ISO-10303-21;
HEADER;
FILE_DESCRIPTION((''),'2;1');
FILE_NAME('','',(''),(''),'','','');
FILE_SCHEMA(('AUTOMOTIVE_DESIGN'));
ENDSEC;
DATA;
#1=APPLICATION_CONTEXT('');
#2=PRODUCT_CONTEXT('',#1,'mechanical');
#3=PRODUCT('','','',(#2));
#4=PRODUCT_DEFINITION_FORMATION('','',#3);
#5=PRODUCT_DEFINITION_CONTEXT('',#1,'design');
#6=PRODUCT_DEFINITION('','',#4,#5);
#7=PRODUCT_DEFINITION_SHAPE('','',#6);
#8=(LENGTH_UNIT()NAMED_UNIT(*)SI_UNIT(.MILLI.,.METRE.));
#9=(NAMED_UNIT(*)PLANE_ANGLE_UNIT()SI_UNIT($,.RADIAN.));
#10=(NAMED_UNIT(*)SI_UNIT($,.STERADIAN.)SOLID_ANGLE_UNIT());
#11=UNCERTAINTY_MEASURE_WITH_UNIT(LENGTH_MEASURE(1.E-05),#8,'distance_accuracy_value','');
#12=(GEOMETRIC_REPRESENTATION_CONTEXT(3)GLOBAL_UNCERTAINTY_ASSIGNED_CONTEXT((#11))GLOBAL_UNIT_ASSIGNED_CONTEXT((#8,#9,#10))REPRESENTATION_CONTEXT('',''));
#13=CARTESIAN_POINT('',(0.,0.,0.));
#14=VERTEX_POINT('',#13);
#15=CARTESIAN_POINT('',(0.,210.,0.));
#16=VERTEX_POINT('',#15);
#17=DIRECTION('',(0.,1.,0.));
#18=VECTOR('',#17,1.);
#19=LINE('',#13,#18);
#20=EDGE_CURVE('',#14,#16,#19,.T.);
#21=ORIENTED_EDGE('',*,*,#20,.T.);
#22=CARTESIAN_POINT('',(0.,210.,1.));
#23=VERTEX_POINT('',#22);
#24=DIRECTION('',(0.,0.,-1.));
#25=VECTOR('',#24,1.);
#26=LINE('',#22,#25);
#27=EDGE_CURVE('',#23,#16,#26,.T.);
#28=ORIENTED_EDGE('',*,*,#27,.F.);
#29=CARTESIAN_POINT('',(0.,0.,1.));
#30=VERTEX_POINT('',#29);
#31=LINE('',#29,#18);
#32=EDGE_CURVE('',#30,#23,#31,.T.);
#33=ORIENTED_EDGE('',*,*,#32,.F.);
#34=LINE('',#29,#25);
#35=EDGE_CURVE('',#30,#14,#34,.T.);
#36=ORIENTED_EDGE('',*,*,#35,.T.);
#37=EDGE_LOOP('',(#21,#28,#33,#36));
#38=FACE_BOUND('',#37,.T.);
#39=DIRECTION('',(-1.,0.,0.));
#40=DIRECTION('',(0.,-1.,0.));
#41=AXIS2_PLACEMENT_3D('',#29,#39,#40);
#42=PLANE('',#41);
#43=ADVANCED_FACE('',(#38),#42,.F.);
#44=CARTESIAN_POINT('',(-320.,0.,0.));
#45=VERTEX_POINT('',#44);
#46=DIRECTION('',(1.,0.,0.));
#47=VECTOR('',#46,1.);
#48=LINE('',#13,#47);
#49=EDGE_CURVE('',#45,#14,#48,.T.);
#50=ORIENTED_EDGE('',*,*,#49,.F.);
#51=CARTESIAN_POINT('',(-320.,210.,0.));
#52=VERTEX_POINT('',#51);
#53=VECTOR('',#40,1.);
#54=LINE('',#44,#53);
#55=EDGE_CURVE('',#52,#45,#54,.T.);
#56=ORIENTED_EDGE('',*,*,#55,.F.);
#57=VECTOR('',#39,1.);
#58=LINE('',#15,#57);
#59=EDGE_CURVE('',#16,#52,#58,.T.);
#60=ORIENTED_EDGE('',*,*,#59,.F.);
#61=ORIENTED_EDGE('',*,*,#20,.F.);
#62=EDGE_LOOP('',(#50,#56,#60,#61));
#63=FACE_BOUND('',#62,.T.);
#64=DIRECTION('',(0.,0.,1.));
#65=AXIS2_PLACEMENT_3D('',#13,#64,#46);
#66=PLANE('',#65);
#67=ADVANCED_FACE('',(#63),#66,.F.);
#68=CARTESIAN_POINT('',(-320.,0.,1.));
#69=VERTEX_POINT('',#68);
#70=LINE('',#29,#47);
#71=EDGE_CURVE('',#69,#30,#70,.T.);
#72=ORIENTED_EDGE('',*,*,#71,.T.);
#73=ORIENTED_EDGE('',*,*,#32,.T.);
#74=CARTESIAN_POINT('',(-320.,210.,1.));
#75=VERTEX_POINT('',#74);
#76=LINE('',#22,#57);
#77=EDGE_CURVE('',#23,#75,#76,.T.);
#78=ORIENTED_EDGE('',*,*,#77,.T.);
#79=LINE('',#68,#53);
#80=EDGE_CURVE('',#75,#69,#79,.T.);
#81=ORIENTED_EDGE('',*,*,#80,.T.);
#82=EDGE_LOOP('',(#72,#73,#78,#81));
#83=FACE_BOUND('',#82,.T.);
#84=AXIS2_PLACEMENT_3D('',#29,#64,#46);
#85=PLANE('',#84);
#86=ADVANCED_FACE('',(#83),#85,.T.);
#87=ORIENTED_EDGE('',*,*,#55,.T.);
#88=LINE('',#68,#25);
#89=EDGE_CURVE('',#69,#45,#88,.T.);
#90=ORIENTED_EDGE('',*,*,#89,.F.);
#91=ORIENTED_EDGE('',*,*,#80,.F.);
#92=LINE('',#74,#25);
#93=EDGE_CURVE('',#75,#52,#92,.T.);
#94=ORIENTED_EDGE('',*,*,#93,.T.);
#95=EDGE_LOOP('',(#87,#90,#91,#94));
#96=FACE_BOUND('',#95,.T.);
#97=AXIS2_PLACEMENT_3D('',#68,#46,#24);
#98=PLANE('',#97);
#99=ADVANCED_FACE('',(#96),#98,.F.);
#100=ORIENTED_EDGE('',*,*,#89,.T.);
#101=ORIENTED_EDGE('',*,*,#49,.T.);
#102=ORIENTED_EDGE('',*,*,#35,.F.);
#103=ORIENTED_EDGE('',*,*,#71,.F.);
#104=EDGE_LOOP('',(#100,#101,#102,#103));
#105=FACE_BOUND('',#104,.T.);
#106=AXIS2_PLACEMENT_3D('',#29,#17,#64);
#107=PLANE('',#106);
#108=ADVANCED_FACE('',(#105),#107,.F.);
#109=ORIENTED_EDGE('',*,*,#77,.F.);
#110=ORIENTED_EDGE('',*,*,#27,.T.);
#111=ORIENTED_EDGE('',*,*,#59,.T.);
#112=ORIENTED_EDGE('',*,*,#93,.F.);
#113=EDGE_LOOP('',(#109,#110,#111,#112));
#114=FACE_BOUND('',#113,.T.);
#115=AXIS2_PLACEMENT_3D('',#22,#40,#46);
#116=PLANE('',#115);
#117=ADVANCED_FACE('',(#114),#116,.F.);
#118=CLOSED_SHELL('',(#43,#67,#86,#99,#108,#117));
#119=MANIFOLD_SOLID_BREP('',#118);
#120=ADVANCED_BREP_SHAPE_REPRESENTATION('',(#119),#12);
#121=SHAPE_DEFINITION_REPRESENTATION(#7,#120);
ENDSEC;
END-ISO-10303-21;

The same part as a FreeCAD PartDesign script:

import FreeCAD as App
import Part
import Sketcher


def add_polygon(sketch, points):
    """Adds a closed chain of lines whose ends are joined by coincident constraints."""
    first, n = sketch.GeometryCount, len(points)
    for a, b in zip(points, points[1:] + points[:1]):
        sketch.addGeometry(Part.LineSegment(App.Vector(*a, 0), App.Vector(*b, 0)), False)
    for i in range(n):
        sketch.addConstraint(Sketcher.Constraint("Coincident", first + i, 2, first + (i + 1) % n, 1))

doc = App.newDocument("Part")
body = doc.addObject("PartDesign::Body", "Body")

sketch1 = doc.addObject("Sketcher::SketchObject", "Sketch")
body.addObject(sketch1)
sketch1.AttachmentSupport = (doc.XY_Plane, [""])
sketch1.MapMode = "FlatFace"
add_polygon(sketch1, [(-320, 210), (-320, 0), (0, 0), (0, 210)])
sketch1.addConstraint(Sketcher.Constraint("Vertical", 0))
sketch1.addConstraint(Sketcher.Constraint("Horizontal", 1))
sketch1.addConstraint(Sketcher.Constraint("Vertical", 2))
sketch1.addConstraint(Sketcher.Constraint("Horizontal", 3))
sketch1.addConstraint(Sketcher.Constraint("Coincident", 1, 2, -1, 1))
sketch1.addConstraint(Sketcher.Constraint("DistanceX", 1, 1, 1, 2, 320.0))
sketch1.addConstraint(Sketcher.Constraint("DistanceY", 0, 2, 0, 1, 210.0))
pad1 = doc.addObject("PartDesign::Pad", "Pad")
body.addObject(pad1)
pad1.Profile = sketch1
pad1.Length = 1

doc.recompute()
